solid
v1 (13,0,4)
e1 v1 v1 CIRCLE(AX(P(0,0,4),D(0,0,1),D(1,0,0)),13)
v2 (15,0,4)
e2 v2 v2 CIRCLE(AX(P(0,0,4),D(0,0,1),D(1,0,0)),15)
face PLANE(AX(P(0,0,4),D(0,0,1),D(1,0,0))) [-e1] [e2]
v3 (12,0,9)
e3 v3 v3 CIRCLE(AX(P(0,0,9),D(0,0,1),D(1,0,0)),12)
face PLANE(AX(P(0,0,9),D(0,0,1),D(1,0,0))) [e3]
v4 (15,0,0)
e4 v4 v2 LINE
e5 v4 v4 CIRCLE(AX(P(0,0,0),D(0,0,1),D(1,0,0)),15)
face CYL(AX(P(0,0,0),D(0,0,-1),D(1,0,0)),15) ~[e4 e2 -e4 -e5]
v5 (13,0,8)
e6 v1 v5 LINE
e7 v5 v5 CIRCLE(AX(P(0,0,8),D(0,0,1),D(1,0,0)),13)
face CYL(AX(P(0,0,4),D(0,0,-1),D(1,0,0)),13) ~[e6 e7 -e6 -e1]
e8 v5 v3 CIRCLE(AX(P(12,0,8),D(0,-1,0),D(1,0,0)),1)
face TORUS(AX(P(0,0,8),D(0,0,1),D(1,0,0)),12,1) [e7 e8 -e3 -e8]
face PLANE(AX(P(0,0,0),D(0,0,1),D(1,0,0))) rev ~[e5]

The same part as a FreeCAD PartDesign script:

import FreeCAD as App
import Part
import Sketcher
from FreeCAD import Vector
Q = App.Units.Quantity


def edges_at(feature, points):
    """Names of the edges that pass closest to the given points."""
    edges = feature.Shape.Edges
    near = lambda p: min(range(len(edges)), key=lambda i: edges[i].distToShape(Part.Vertex(*p))[0])
    return sorted({f"Edge{near(p) + 1}" for p in points})

doc = App.newDocument("Part")
body = doc.addObject("PartDesign::Body", "Body")

# Sketch on XY plane
sketch1 = doc.addObject("Sketcher::SketchObject", "Sketch")
body.addObject(sketch1)
sketch1.AttachmentSupport = (doc.XY_Plane, [""])
sketch1.MapMode = "FlatFace"
sketch1.addGeometry(Part.Circle(Vector(0, 0, 0), Vector(0, 0, 1), 15), False)
sketch1.addConstraint([
    Sketcher.Constraint("Coincident", 0, 3, -1, 1),
    Sketcher.Constraint("Diameter", 0, Q("30 mm")),
])
pad1 = doc.addObject("PartDesign::Pad", "Pad")
body.addObject(pad1)
pad1.Profile = sketch1
pad1.Length = 4

# Sketch on XY plane
sketch2 = doc.addObject("Sketcher::SketchObject", "Sketch001")
body.addObject(sketch2)
sketch2.AttachmentSupport = (doc.XY_Plane, [""])
sketch2.MapMode = "FlatFace"
sketch2.AttachmentOffset = App.Placement(Vector(0, 0, 4), App.Rotation())
sketch2.addGeometry(Part.Circle(Vector(0, 0, 0), Vector(0, 0, 1), 13), False)
sketch2.addConstraint([
    Sketcher.Constraint("Coincident", 0, 3, -1, 1),
    Sketcher.Constraint("Diameter", 0, Q("26 mm")),
])
pad2 = doc.addObject("PartDesign::Pad", "Pad001")
body.addObject(pad2)
pad2.Profile = sketch2
pad2.Length = 5
doc.recompute()

fillet = doc.addObject("PartDesign::Fillet", "Fillet")
body.addObject(fillet)
fillet.Base = (pad2, edges_at(pad2, [(-13, 0, 9)]))
fillet.Radius = 1

doc.recompute()
